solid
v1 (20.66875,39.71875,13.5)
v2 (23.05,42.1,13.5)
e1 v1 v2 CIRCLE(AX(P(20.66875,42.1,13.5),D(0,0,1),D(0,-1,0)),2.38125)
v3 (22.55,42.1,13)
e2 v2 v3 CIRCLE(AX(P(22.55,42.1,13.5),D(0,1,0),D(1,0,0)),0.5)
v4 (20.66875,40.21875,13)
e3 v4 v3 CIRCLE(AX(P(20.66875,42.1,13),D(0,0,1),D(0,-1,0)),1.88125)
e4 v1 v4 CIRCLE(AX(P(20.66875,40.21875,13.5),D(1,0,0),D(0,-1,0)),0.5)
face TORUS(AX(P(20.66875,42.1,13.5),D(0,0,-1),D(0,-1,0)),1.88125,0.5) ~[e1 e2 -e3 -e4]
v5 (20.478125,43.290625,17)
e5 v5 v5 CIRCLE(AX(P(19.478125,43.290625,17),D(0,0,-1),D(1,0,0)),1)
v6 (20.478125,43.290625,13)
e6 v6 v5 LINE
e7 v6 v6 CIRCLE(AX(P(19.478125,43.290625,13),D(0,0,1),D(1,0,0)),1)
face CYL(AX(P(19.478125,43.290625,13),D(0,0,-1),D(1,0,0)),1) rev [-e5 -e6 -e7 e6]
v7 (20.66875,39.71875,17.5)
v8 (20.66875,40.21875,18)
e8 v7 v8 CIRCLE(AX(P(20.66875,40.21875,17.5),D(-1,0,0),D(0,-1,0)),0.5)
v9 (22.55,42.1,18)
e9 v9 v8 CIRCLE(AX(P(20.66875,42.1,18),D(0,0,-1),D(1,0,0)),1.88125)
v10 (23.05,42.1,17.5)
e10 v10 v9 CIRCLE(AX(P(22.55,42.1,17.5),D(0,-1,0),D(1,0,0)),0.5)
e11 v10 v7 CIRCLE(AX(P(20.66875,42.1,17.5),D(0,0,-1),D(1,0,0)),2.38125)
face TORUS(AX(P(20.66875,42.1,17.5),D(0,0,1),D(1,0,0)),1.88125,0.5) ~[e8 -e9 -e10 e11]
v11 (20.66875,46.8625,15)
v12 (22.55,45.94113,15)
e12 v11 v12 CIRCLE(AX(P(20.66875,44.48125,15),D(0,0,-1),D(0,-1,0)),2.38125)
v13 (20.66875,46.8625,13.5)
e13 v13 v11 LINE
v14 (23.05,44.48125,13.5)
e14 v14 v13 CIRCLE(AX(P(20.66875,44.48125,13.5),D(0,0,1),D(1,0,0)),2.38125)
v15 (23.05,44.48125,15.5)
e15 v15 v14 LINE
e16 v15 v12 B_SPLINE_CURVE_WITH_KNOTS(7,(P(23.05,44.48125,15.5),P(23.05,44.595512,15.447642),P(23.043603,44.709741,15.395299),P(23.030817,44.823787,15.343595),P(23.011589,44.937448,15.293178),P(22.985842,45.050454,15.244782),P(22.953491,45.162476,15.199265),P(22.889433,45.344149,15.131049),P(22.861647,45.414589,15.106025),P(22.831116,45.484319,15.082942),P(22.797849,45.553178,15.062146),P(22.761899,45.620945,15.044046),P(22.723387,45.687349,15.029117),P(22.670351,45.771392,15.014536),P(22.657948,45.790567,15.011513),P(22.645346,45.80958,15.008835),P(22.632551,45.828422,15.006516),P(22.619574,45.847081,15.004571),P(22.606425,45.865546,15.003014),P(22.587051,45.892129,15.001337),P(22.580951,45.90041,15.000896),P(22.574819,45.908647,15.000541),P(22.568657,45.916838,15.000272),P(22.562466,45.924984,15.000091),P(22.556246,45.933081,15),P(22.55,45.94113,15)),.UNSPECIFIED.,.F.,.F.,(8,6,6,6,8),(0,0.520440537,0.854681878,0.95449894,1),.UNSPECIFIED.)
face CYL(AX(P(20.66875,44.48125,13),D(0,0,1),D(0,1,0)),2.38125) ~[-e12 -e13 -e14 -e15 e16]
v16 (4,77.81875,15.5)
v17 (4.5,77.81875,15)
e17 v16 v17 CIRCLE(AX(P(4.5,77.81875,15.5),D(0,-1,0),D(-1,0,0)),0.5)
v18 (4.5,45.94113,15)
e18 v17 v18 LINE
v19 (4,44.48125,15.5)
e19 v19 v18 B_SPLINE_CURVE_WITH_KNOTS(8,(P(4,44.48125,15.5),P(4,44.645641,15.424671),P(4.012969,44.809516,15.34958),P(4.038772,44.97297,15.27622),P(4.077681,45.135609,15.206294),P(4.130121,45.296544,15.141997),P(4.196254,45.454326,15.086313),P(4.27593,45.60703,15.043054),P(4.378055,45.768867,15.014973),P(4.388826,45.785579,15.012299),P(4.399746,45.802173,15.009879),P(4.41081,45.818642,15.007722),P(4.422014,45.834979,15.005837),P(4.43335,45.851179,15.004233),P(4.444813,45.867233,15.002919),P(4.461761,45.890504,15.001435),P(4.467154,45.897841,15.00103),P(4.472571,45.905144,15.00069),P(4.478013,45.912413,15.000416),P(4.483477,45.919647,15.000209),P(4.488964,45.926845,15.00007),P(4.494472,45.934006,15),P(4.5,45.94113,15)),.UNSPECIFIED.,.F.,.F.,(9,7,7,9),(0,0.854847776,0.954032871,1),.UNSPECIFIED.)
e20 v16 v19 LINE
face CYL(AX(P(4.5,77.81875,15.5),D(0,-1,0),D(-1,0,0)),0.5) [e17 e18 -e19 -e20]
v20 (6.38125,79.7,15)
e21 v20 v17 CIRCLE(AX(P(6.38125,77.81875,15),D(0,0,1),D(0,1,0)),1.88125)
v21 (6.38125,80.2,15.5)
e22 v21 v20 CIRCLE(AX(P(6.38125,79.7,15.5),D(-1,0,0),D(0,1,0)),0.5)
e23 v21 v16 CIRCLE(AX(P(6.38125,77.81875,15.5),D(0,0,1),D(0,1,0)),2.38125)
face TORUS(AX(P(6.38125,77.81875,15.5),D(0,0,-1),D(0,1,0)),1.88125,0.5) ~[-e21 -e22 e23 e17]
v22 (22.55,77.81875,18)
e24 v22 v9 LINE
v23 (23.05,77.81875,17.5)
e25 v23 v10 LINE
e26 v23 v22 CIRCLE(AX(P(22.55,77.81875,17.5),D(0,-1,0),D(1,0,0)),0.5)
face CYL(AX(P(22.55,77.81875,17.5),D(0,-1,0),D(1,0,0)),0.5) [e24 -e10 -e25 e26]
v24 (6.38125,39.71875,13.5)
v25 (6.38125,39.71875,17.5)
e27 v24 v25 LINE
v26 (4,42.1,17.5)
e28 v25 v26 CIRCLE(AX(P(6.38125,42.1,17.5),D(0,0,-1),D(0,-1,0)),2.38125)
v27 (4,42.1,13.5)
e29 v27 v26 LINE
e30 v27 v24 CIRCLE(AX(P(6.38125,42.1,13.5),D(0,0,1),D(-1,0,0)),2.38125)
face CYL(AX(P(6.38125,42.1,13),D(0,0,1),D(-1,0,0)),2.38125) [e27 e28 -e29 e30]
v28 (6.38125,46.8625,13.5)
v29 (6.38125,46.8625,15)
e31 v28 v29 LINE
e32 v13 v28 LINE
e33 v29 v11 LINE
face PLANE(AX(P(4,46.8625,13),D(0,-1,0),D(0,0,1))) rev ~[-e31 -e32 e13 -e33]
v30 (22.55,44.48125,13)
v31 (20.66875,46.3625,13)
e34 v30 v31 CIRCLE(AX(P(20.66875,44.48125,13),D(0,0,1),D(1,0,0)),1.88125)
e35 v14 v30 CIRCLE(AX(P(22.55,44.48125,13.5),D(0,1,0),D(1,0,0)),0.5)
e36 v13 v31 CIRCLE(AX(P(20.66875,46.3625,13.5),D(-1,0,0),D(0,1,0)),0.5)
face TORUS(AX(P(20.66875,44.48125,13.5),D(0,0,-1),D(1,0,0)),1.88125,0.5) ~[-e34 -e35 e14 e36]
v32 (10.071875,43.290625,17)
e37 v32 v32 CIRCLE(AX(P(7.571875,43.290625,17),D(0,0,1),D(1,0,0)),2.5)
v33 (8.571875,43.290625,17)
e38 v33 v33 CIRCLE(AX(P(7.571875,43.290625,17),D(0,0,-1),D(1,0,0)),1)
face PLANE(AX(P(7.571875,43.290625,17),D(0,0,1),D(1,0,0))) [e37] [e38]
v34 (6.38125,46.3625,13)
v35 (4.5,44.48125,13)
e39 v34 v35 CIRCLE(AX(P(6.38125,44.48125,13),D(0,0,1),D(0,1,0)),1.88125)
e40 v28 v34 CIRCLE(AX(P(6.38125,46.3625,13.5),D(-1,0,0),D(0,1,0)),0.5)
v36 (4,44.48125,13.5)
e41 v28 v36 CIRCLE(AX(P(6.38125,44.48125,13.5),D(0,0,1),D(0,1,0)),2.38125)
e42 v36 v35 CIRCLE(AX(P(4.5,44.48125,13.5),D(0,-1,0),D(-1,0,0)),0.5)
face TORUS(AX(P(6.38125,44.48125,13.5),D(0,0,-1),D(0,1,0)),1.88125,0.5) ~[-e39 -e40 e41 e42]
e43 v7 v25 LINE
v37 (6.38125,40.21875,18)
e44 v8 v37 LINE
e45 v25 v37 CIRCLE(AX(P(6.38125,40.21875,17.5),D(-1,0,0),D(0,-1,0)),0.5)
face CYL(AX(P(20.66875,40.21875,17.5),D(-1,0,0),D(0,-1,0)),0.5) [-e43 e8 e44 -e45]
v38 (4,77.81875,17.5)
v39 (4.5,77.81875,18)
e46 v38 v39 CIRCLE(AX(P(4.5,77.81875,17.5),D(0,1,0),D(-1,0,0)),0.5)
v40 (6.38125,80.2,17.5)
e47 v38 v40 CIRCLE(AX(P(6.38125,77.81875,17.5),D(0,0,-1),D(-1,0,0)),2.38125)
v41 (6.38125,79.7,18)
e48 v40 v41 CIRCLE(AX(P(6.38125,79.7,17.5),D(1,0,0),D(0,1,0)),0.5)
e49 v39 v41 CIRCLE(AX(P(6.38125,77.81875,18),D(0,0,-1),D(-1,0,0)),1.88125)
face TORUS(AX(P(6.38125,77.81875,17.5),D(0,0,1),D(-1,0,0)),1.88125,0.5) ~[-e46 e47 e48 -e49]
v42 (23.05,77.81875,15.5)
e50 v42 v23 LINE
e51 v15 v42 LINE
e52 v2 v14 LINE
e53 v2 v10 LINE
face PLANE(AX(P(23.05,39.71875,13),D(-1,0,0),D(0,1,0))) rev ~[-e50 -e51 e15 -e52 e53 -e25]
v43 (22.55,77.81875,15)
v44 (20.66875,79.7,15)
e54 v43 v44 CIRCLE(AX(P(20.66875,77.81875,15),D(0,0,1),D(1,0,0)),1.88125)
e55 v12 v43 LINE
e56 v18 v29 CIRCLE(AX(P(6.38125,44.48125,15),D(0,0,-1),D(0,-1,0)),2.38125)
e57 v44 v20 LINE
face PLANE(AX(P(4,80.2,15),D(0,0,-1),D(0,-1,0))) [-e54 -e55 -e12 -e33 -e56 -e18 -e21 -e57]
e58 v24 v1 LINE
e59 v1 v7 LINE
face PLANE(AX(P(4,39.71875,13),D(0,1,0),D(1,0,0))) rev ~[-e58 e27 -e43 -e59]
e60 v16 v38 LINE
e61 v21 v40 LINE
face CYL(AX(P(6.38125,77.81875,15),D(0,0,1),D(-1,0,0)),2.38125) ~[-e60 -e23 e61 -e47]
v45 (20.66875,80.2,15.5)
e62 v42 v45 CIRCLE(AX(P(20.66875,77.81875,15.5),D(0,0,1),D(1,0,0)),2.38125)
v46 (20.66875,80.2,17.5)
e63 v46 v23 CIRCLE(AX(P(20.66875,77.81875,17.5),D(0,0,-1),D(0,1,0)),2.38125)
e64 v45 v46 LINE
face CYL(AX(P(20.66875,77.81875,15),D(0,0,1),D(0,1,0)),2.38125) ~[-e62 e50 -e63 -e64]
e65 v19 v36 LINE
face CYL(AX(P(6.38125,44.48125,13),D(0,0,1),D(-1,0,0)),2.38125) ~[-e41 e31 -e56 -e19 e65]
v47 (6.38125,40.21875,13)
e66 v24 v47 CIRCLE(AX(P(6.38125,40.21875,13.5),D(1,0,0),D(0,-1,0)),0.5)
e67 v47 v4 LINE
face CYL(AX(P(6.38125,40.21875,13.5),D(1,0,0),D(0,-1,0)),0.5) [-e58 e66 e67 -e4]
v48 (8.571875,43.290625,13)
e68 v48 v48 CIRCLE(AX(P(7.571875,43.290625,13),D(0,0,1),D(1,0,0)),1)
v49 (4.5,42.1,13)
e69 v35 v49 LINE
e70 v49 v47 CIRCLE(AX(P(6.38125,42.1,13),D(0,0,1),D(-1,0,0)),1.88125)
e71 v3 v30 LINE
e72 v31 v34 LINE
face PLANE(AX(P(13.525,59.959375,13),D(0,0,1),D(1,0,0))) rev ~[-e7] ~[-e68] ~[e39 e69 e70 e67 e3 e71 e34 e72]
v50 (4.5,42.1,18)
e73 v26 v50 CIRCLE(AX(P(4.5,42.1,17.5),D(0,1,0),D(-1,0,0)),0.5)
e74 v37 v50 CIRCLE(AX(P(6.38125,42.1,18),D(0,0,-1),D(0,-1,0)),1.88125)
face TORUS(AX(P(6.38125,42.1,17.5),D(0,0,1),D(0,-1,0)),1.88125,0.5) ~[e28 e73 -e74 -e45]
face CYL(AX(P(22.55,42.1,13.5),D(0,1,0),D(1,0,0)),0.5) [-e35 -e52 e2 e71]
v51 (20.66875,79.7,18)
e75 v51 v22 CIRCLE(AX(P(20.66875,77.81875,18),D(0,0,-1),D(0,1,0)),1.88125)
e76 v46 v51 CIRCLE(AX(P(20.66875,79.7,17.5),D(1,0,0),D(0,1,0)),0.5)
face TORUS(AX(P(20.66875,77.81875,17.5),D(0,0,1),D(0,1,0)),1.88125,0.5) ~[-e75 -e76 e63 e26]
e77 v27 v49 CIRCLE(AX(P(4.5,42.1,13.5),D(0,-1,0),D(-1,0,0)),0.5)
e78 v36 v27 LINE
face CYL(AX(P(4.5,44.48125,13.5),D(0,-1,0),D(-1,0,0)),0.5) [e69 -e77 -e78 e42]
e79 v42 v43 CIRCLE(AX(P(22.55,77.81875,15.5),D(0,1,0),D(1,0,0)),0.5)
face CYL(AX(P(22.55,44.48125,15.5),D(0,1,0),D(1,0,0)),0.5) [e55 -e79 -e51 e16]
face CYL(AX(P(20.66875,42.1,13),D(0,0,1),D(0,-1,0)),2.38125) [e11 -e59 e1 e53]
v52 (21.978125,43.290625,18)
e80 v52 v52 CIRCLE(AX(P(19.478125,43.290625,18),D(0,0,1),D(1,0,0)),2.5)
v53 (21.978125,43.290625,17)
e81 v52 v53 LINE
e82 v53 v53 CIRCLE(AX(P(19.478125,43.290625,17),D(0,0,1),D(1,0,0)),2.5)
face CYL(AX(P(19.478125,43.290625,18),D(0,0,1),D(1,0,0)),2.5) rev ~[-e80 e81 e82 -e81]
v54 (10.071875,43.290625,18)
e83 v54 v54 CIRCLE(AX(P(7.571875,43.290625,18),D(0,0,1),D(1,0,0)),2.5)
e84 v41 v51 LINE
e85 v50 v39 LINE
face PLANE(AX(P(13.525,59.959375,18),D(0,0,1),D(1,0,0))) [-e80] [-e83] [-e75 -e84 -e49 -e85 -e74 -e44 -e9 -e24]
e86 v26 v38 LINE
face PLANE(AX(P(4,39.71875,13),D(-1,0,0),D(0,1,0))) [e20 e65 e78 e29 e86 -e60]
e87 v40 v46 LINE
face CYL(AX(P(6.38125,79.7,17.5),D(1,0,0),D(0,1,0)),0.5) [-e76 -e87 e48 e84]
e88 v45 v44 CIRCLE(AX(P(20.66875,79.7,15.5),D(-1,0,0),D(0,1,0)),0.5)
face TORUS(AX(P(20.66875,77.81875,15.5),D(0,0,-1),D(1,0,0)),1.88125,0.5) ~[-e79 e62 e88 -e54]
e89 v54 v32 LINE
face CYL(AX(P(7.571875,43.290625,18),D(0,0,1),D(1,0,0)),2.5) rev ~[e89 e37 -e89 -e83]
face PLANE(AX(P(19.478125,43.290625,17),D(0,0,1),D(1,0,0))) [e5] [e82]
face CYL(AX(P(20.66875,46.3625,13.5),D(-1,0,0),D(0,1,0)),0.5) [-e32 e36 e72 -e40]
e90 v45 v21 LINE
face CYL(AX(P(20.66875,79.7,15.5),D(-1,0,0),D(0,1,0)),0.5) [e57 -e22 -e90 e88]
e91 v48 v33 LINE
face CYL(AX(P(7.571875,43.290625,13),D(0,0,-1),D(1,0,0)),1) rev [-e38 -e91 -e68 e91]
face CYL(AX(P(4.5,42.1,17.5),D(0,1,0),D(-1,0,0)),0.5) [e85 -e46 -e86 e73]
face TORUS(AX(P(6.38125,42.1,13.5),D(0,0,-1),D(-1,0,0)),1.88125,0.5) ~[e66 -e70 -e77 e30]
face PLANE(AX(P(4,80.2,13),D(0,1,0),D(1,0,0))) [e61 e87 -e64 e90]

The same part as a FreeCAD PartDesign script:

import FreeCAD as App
import Part
import Sketcher


def edges_at(feature, points):
    """Names of the edges that pass closest to the given points."""
    edges = feature.Shape.Edges
    near = lambda p: min(range(len(edges)), key=lambda i: edges[i].distToShape(Part.Vertex(*p))[0])
    return sorted({f"Edge{near(p) + 1}" for p in points})

doc = App.newDocument("Part")
body = doc.addObject("PartDesign::Body", "Body")

# Sketch on XY plane
sketch1 = body.newObject("Sketcher::SketchObject", "Sketch")
sketch1.AttachmentSupport = (doc.getObject("XY_Plane"), [""])
sketch1.MapMode = "FlatFace"
sketch1.addGeometry([
    Part.LineSegment(App.Vector(0, 76.2, 0), App.Vector(0, 35.71875, 0)),  # 0
    Part.LineSegment(App.Vector(0, 35.71875, 0), App.Vector(19.05, 35.71875, 0)),  # 1
    Part.LineSegment(App.Vector(19.05, 35.71875, 0), App.Vector(19.05, 76.2, 0)),  # 2
    Part.LineSegment(App.Vector(19.05, 76.2, 0), App.Vector(0, 76.2, 0)),  # 3
    Part.Circle(App.Vector(3.571875, 39.290625, 0), App.Vector(0, 0, 1), 1),  # 4
    Part.Circle(App.Vector(15.478125, 39.290625, 0), App.Vector(0, 0, 1), 1),  # 5
], False)
sketch1.addConstraint([
    Sketcher.Constraint("Coincident", 0, 2, 1, 1),
    Sketcher.Constraint("Coincident", 1, 2, 2, 1),
    Sketcher.Constraint("Coincident", 2, 2, 3, 1),
    Sketcher.Constraint("Coincident", 3, 2, 0, 1),
    Sketcher.Constraint("Vertical", 0),
    Sketcher.Constraint("Horizontal", 1),
    Sketcher.Constraint("Vertical", 2),
    Sketcher.Constraint("Horizontal", 3),
    Sketcher.Constraint("Equal", 4, 5),
    Sketcher.Constraint("PointOnObject", 0, 2, -2),
    Sketcher.Constraint("Horizontal", 4, 3, 5, 3),
    Sketcher.Constraint("Diameter", 4, 2.0),
    Sketcher.Constraint("DistanceX", 1, 1, 1, 2, 19.05),
    Sketcher.Constraint("DistanceY", -1, 1, 2, 2, 76.2),
    Sketcher.Constraint("DistanceY", 0, 2, 0, 1, 40.48125),
    Sketcher.Constraint("DistanceX", 4, 3, 5, 3, 11.90625),
    Sketcher.Constraint("DistanceX", -1, 1, 4, 3, 3.571875),
    Sketcher.Constraint("DistanceY", -1, 1, 4, 3, 39.290625),
])
pad1 = body.newObject("PartDesign::Pad", "Pad")
pad1.Profile = sketch1
pad1.Length = 5

# Sketch on YZ plane
sketch2 = body.newObject("Sketcher::SketchObject", "Sketch001")
sketch2.AttachmentSupport = (doc.getObject("YZ_Plane"), [""])
sketch2.MapMode = "FlatFace"
sketch2.addGeometry([
    Part.LineSegment(App.Vector(76.2, 2, 0), App.Vector(76.2, 0, 0)),
    Part.LineSegment(App.Vector(76.2, 0, 0), App.Vector(42.8625, 0, 0)),
    Part.LineSegment(App.Vector(42.8625, 0, 0), App.Vector(42.8625, 2, 0)),
    Part.LineSegment(App.Vector(42.8625, 2, 0), App.Vector(76.2, 2, 0)),
], False)
sketch2.addConstraint([
    Sketcher.Constraint("Coincident", 0, 2, 1, 1),
    Sketcher.Constraint("Coincident", 1, 2, 2, 1),
    Sketcher.Constraint("Coincident", 2, 2, 3, 1),
    Sketcher.Constraint("Coincident", 3, 2, 0, 1),
    Sketcher.Constraint("Vertical", 0),
    Sketcher.Constraint("Horizontal", 1),
    Sketcher.Constraint("Vertical", 2),
    Sketcher.Constraint("Horizontal", 3),
    Sketcher.Constraint("PointOnObject", 0, 2, -1),
    Sketcher.Constraint("DistanceY", 0, 2, 0, 1, 2.0),
    Sketcher.Constraint("DistanceX", -1, 1, 0, 2, 76.2),
    Sketcher.Constraint("DistanceX", 1, 2, 1, 1, 33.3375),
])
pocket1 = body.newObject("PartDesign::Pocket", "Pocket")
pocket1.Profile = sketch2
pocket1.Type = "ThroughAll"
pocket1.Reversed = True

# Sketch on XY plane
sketch3 = body.newObject("Sketcher::SketchObject", "Sketch002")
sketch3.AttachmentSupport = (doc.getObject("XY_Plane"), [""])
sketch3.MapMode = "FlatFace"
sketch3.AttachmentOffset = App.Placement(App.Vector(0, 0, 5), App.Rotation())
sketch3.addGeometry([
    Part.Circle(App.Vector(3.571875, 39.290625, 0), App.Vector(0, 0, 1), 2.5),
    Part.Circle(App.Vector(15.478125, 39.290625, 0), App.Vector(0, 0, 1), 2.5),
], False)
sketch3.addConstraint([
    Sketcher.Constraint("Equal", 0, 1),
    Sketcher.Constraint("Horizontal", 0, 3, 1, 3),
    Sketcher.Constraint("Diameter", 0, 5.0),
    Sketcher.Constraint("DistanceX", 0, 3, 1, 3, 11.90625),
    Sketcher.Constraint("DistanceX", -1, 1, 0, 3, 3.571875),
    Sketcher.Constraint("DistanceY", -1, 1, 0, 3, 39.290625),
])
pocket2 = body.newObject("PartDesign::Pocket", "Pocket001")
pocket2.Profile = sketch3
pocket2.Length = 1
doc.recompute()

fillet = body.newObject("PartDesign::Fillet", "Fillet")
fillet.Base = (pocket2, edges_at(pocket2, [
    (0, 76.2, 3.5),
    (0, 35.719, 2.5),
    (19.05, 35.719, 2.5),
    (19.05, 76.2, 3.5),
    (19.05, 42.862, 1),
    (0, 42.862, 1),
]))
fillet.Radius = 2.38125
doc.recompute()

fillet2 = body.newObject("PartDesign::Fillet", "Fillet001")
fillet2.Base = (fillet, edges_at(fillet, [(0, 57.15, 2), (9.525, 35.719, 0), (0, 55.959, 5)]))
fillet2.Radius = 0.5
body2 = doc.addObject("PartDesign::Body", "Body001")
doc.recompute()

body.Placement = App.Placement(App.Vector(4, 4, 13), App.Rotation(App.Vector(0, 0, 1), 0))
boolean = body2.newObject("PartDesign::Boolean", "Boolean")
boolean.Type = "Fuse"
boolean.addObjects([body])

doc.recompute()
